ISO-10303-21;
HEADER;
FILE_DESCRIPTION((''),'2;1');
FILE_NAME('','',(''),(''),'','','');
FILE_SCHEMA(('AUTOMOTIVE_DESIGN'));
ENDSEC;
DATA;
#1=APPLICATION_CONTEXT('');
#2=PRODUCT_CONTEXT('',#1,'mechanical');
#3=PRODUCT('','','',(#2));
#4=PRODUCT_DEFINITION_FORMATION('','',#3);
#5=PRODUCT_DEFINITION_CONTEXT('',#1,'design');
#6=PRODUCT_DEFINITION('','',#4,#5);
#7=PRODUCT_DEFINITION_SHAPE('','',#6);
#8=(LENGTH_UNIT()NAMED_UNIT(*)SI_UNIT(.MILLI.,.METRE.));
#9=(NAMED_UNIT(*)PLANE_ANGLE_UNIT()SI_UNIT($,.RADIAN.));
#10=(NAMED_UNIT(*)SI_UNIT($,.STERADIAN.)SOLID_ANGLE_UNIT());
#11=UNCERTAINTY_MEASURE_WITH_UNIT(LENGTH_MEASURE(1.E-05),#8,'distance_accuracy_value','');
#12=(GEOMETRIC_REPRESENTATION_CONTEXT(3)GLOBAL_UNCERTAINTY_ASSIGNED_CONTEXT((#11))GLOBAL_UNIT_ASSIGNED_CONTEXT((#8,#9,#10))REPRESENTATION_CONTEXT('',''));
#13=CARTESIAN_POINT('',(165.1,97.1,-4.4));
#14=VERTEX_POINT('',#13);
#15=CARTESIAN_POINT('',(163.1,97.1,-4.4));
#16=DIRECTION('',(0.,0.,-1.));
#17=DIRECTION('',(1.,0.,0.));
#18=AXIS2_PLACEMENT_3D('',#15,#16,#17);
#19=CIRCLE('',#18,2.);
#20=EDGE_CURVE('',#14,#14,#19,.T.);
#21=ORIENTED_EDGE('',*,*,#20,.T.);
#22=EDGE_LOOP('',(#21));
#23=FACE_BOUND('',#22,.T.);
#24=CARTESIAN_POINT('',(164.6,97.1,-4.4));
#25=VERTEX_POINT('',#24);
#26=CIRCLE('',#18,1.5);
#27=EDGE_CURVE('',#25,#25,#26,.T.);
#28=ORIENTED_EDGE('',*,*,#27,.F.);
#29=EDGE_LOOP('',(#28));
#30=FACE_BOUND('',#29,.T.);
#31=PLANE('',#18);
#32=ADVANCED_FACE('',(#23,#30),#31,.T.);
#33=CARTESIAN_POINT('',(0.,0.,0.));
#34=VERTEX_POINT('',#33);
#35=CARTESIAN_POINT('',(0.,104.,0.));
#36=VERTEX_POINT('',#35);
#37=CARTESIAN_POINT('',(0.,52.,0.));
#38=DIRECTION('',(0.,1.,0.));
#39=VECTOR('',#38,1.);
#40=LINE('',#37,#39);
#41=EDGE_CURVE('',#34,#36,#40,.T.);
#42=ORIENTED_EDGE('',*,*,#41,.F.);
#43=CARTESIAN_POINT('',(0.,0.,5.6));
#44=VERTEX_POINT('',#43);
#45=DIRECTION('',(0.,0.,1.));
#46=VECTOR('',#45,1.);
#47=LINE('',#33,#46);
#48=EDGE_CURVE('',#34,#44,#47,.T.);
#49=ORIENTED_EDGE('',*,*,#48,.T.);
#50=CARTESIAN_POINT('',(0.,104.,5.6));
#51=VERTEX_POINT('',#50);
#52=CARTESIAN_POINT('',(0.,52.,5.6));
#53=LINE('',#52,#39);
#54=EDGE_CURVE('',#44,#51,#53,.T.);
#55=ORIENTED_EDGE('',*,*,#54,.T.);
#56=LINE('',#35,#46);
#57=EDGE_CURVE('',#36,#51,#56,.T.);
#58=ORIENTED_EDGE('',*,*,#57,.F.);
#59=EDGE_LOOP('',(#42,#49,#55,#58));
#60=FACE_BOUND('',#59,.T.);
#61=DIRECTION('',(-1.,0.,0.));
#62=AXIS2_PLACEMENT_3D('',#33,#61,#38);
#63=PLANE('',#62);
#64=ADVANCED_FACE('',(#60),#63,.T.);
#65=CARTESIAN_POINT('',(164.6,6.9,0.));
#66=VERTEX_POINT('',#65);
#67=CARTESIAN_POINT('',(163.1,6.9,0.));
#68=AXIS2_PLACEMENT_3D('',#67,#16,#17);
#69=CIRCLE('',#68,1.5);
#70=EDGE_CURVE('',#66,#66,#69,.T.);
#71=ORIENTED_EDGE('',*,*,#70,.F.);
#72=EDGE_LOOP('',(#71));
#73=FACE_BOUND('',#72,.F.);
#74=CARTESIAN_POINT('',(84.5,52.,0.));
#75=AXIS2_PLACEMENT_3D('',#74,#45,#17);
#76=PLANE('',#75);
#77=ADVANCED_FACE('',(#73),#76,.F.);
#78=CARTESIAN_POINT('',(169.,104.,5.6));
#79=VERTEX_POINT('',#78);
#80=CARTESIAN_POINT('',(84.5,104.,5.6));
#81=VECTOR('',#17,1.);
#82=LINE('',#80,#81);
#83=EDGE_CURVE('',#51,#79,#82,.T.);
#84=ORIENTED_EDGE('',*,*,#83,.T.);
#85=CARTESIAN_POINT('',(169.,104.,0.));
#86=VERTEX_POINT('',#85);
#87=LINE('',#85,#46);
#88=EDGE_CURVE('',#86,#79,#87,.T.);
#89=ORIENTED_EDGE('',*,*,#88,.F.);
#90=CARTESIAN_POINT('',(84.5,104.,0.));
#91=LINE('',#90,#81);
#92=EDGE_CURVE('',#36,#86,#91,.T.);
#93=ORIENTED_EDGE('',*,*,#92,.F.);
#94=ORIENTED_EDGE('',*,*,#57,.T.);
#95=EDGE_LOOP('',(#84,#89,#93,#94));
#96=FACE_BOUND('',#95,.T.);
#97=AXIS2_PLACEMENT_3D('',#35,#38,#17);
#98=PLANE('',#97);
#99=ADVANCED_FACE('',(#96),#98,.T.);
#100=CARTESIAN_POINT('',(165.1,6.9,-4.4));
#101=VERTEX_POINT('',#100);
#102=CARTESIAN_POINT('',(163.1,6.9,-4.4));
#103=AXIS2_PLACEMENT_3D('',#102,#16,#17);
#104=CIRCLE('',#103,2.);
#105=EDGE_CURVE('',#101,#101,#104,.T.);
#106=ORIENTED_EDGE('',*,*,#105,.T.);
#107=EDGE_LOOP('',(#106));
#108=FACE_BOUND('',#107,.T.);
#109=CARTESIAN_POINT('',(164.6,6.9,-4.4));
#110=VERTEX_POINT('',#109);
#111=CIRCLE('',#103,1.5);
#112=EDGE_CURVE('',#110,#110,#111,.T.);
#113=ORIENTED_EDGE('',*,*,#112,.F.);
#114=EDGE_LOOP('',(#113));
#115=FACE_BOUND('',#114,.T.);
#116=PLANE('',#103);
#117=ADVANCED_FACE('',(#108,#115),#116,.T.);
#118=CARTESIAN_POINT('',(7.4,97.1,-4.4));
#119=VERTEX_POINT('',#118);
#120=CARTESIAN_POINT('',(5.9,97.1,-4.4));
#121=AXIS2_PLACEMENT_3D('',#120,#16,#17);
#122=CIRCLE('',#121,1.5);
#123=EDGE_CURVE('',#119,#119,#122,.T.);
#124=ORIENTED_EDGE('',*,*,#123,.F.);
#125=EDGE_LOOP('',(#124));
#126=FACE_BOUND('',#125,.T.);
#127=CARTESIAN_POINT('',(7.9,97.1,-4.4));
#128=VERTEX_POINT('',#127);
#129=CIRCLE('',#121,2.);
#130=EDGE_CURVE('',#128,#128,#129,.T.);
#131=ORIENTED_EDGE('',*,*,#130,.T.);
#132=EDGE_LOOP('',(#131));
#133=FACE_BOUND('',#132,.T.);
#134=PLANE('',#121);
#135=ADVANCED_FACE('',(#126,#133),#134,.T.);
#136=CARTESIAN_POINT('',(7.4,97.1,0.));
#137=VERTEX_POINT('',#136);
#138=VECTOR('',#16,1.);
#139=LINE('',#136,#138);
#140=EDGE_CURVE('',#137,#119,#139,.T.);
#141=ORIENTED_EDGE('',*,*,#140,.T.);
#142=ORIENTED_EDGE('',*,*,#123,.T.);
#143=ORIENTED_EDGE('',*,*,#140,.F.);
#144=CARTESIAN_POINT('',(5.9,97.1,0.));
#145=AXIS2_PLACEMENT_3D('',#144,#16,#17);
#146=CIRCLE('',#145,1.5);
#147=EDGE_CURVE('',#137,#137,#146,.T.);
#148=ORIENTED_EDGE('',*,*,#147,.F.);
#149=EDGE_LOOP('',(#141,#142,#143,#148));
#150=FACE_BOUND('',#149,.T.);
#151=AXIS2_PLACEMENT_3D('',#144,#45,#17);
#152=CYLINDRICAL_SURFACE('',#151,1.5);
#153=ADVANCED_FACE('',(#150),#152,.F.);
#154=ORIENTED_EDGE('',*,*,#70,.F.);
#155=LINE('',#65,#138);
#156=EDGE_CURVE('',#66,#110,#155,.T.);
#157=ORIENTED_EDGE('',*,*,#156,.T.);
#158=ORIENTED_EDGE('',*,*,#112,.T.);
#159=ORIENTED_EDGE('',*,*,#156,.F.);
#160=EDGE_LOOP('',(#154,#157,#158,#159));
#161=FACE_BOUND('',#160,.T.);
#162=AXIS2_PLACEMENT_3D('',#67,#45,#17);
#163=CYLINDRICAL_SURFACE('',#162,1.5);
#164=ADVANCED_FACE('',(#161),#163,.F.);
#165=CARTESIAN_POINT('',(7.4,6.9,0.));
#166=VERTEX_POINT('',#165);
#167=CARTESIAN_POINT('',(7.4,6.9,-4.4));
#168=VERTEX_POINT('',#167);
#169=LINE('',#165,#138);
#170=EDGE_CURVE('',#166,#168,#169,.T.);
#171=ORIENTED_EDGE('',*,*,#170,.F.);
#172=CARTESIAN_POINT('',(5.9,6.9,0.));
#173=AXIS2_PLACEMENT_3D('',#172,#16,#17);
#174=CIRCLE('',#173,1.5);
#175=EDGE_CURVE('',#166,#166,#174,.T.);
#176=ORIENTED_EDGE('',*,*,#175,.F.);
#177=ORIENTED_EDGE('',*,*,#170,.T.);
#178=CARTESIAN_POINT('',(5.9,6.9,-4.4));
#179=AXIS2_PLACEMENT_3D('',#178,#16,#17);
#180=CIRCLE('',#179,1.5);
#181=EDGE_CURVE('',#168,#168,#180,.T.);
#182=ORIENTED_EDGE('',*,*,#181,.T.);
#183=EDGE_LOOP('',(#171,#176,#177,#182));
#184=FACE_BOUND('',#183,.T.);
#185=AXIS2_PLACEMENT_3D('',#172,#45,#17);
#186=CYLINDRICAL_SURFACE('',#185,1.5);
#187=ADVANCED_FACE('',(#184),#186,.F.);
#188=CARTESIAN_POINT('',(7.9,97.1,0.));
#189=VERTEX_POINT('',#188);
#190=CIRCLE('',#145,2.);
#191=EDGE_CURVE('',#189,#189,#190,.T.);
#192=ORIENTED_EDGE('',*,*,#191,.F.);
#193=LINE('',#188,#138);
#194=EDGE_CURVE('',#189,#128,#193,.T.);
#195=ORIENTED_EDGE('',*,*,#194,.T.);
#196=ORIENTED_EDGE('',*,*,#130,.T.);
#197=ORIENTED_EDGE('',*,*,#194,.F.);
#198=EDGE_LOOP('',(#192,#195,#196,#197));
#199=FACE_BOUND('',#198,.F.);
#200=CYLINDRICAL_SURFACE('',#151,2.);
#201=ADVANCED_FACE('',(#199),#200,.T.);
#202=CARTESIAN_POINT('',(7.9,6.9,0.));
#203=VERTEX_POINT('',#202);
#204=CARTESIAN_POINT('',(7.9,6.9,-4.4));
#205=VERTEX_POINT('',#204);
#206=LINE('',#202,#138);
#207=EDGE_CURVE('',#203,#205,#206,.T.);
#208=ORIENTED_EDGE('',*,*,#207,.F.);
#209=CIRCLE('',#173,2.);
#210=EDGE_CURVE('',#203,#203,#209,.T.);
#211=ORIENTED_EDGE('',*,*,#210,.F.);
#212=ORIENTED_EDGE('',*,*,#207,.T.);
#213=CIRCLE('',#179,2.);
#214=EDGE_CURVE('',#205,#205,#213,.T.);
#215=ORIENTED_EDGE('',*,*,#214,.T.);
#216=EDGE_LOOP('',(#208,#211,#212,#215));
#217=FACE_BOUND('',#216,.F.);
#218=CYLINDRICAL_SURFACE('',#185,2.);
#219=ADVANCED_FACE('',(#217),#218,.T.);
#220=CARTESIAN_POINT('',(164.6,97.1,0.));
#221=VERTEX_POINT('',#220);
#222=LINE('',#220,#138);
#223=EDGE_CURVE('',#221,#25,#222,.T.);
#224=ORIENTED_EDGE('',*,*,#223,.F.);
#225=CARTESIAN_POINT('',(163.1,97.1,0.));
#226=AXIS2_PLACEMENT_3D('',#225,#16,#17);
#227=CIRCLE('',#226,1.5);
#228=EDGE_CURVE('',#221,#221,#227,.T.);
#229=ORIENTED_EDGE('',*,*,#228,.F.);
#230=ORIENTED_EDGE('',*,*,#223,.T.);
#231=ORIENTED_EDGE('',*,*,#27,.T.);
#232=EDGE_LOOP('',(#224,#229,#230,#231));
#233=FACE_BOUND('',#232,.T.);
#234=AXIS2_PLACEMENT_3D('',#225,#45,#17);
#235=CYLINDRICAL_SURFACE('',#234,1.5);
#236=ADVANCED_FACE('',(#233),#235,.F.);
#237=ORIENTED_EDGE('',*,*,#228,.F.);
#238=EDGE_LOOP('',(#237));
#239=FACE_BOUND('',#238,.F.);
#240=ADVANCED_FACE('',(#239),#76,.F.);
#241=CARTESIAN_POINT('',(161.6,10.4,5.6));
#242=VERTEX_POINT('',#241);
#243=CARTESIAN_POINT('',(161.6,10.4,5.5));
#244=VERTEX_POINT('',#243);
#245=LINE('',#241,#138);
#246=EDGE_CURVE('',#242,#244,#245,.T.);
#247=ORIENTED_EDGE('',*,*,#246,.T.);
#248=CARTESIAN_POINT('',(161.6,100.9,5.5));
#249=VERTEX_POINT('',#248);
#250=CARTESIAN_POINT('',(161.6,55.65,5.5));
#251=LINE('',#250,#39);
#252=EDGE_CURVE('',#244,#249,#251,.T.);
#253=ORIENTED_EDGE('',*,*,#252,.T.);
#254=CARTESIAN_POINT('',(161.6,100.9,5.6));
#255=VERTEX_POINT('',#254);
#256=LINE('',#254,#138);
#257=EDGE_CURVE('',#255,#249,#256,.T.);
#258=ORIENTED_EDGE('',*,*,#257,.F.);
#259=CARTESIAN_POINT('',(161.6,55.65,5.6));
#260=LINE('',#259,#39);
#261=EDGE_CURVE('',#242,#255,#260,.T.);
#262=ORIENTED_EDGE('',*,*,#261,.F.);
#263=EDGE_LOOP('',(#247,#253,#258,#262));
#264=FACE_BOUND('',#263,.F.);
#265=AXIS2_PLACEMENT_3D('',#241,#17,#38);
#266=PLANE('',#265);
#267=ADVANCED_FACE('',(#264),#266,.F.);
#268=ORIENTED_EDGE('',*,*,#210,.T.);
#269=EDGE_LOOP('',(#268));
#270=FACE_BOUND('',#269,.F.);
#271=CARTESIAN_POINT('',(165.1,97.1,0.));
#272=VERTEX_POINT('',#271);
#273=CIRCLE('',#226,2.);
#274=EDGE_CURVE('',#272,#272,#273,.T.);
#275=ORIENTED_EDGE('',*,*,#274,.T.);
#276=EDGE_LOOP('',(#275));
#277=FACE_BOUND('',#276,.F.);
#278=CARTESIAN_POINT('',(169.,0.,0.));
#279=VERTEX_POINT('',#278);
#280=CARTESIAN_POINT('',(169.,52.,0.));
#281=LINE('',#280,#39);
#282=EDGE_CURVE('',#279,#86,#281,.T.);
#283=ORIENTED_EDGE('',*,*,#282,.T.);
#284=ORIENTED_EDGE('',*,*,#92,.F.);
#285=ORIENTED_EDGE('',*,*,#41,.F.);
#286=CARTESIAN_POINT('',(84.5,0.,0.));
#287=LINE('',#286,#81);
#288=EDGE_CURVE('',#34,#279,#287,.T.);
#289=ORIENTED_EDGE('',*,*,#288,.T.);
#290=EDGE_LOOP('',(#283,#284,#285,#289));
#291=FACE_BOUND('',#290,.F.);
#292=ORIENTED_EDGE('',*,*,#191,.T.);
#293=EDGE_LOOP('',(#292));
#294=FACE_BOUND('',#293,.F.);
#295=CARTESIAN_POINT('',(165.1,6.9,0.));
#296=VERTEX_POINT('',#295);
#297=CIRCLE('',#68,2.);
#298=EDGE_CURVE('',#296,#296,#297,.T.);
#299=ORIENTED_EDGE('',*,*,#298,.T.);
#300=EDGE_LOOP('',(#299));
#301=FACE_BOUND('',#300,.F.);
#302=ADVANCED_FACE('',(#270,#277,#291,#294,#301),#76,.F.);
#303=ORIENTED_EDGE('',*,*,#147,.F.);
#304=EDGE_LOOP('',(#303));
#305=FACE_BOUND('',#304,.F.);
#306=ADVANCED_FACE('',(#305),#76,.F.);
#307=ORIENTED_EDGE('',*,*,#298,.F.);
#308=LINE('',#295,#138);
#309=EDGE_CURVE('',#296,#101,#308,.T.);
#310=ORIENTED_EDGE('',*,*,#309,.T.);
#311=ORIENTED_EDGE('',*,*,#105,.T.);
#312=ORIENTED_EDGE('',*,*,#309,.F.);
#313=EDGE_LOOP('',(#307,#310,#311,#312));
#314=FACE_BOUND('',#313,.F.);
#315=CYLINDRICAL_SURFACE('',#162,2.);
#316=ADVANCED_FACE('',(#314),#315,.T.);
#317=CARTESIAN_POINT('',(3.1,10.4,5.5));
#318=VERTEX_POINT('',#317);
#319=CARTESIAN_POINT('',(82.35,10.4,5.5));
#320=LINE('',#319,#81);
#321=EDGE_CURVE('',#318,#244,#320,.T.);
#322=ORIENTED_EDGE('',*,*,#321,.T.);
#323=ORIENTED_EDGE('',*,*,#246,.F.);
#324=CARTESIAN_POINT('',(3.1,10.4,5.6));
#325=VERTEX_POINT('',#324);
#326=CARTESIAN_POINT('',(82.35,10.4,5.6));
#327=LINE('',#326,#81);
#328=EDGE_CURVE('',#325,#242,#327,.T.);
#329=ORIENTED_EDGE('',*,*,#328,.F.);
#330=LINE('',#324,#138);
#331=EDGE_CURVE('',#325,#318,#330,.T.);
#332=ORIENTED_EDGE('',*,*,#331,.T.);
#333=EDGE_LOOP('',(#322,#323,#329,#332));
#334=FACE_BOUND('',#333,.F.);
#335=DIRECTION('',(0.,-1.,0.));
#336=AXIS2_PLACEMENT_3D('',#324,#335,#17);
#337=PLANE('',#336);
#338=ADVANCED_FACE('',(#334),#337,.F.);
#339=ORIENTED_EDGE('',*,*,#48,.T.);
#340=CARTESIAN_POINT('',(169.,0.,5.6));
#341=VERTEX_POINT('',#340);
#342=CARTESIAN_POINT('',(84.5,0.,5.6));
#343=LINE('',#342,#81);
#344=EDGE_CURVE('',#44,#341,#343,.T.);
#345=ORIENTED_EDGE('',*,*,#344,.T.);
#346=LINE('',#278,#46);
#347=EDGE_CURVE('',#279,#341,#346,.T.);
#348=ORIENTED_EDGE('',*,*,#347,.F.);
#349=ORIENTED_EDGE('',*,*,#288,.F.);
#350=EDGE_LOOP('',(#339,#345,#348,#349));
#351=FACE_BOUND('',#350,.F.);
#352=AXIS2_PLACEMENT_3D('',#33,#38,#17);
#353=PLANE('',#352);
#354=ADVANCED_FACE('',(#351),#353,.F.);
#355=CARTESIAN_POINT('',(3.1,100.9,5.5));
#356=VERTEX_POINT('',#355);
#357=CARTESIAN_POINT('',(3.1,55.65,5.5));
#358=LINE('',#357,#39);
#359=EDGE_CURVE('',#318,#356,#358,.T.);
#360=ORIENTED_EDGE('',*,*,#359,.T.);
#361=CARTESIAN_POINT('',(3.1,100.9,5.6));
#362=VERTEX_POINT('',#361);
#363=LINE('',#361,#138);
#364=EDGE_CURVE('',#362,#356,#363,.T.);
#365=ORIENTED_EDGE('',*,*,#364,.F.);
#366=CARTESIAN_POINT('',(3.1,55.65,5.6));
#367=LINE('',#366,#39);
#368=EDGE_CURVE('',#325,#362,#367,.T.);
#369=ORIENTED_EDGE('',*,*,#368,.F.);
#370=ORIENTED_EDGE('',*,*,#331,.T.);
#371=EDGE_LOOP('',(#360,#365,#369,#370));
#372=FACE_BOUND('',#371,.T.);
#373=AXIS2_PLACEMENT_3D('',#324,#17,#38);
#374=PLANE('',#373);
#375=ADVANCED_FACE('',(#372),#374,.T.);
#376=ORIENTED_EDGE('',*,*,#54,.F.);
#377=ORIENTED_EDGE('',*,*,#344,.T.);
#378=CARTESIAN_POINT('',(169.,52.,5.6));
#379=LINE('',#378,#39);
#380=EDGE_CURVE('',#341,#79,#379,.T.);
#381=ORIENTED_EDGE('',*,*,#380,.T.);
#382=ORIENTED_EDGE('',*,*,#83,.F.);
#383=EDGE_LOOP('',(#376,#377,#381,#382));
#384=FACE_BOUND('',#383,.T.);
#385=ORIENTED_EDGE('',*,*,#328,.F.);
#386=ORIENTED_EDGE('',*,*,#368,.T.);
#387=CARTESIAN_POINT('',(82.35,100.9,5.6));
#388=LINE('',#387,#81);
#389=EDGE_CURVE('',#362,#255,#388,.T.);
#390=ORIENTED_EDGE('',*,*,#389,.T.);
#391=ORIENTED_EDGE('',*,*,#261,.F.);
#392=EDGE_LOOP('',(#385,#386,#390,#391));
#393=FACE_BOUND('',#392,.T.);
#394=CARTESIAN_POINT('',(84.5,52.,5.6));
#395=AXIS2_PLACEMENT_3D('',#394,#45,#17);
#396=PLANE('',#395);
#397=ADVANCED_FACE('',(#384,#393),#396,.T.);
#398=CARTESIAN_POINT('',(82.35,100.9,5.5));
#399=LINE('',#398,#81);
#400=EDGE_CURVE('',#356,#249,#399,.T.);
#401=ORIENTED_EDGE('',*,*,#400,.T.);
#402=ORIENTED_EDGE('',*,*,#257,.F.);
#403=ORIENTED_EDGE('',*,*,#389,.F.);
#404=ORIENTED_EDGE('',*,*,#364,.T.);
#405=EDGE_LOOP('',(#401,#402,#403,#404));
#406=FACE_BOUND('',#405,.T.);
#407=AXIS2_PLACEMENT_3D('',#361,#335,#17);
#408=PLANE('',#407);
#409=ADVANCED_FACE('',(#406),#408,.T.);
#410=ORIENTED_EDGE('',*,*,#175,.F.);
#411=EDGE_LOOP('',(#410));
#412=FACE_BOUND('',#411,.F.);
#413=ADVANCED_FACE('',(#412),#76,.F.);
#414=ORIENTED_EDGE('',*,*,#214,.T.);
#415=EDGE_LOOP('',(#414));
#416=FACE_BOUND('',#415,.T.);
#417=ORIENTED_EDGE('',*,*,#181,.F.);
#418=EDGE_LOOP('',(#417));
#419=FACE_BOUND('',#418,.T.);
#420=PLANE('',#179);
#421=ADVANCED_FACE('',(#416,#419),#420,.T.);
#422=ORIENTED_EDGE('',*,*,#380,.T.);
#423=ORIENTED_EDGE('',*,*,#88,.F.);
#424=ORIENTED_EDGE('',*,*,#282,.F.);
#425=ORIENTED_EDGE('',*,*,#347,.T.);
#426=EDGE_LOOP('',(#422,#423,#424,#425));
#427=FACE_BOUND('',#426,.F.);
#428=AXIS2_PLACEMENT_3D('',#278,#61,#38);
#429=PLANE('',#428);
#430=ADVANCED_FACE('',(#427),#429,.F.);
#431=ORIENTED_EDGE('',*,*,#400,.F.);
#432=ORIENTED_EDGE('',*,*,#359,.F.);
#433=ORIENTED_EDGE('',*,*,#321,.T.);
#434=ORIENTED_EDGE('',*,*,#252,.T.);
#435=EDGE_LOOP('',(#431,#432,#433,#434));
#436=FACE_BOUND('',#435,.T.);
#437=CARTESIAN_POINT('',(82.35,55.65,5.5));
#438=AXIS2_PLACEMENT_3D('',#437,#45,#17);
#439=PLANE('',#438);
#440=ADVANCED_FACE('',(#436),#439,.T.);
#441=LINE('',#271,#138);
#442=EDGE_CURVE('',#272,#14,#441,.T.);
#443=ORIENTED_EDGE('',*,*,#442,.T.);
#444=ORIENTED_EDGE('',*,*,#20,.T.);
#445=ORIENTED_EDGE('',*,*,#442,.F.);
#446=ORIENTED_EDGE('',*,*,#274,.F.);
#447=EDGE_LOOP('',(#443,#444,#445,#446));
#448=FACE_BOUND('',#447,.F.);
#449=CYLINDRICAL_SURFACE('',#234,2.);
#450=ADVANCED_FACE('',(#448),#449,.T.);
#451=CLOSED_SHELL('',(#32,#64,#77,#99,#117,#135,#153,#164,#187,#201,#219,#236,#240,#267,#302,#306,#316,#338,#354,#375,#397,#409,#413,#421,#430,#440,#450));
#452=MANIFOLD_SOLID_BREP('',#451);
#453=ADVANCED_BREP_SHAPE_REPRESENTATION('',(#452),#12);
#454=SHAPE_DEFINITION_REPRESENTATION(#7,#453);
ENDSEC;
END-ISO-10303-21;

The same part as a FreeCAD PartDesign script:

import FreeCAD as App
import Part
import Sketcher
from FreeCAD import Vector
Q = App.Units.Quantity

doc = App.newDocument("Part")
body = doc.addObject("PartDesign::Body", "Body")

# Sketch on XY plane
sketch1 = body.newObject("Sketcher::SketchObject", "Sketch")
sketch1.AttachmentSupport = (doc.getObject("XY_Plane"), [""])
sketch1.MapMode = "FlatFace"
sketch1.addGeometry([
    Part.LineSegment(Vector(0, 104, 0), Vector(0, 0, 0)),
    Part.LineSegment(Vector(0, 0, 0), Vector(169, 0, 0)),
    Part.LineSegment(Vector(169, 0, 0), Vector(169, 104, 0)),
    Part.LineSegment(Vector(169, 104, 0), Vector(0, 104, 0)),
], False)
sketch1.addConstraint([
    Sketcher.Constraint("Coincident", 0, 2, 1, 1),
    Sketcher.Constraint("Coincident", 1, 2, 2, 1),
    Sketcher.Constraint("Coincident", 2, 2, 3, 1),
    Sketcher.Constraint("Coincident", 3, 2, 0, 1),
    Sketcher.Constraint("Vertical", 0),
    Sketcher.Constraint("Horizontal", 1),
    Sketcher.Constraint("Vertical", 2),
    Sketcher.Constraint("Horizontal", 3),
    Sketcher.Constraint("Coincident", 0, 2, -1, 1),
    Sketcher.Constraint("DistanceX", 1, 1, 1, 2, Q("169 mm")),
    Sketcher.Constraint("DistanceY", 0, 2, 0, 1, Q("104 mm")),
])
pad1 = body.newObject("PartDesign::Pad", "Pad")
pad1.Profile = sketch1
pad1.Length = 5.6

# Sketch on XY plane
sketch2 = body.newObject("Sketcher::SketchObject", "Sketch001")
sketch2.AttachmentSupport = (doc.getObject("XY_Plane"), [""])
sketch2.MapMode = "FlatFace"
sketch2.AttachmentOffset = App.Placement(Vector(0, 0, 5.6), App.Rotation())
sketch2.addGeometry([
    Part.LineSegment(Vector(3, 101, 0), Vector(3, 10, 0)),
    Part.LineSegment(Vector(3, 10, 0), Vector(162, 10, 0)),
    Part.LineSegment(Vector(162, 10, 0), Vector(162, 101, 0)),
    Part.LineSegment(Vector(162, 101, 0), Vector(3, 101, 0)),
], False)
sketch2.addConstraint([
    Sketcher.Constraint("Coincident", 0, 2, 1, 1),
    Sketcher.Constraint("Coincident", 1, 2, 2, 1),
    Sketcher.Constraint("Coincident", 2, 2, 3, 1),
    Sketcher.Constraint("Coincident", 3, 2, 0, 1),
    Sketcher.Constraint("Vertical", 0),
    Sketcher.Constraint("Horizontal", 1),
    Sketcher.Constraint("Vertical", 2),
    Sketcher.Constraint("Horizontal", 3),
    Sketcher.Constraint("DistanceX", 1, 1, 1, 2, Q("158.5 mm")),
    Sketcher.Constraint("DistanceY", 0, 2, 0, 1, Q("90.5 mm")),
    Sketcher.Constraint("DistanceX", -1, 1, 0, 2, Q("3.1 mm")),
    Sketcher.Constraint("DistanceY", -1, 1, 0, 2, Q("10.4 mm")),
])
pocket1 = body.newObject("PartDesign::Pocket", "Pocket")
pocket1.Profile = sketch2
pocket1.Length = 0.1

# Sketch on XY plane
sketch3 = body.newObject("Sketcher::SketchObject", "Sketch002")
sketch3.AttachmentSupport = (doc.getObject("XY_Plane"), [""])
sketch3.MapMode = "FlatFace"
sketch3.addGeometry([
    Part.Circle(Vector(163.1, 97.1, 0), Vector(0, 0, 1), 2),  # 0
    Part.Circle(Vector(163.1, 97.1, 0), Vector(0, 0, 1), 1.5),  # 1
    Part.Circle(Vector(5.9, 97.1, 0), Vector(0, 0, 1), 2),  # 2
    Part.Circle(Vector(5.9, 97.1, 0), Vector(0, 0, 1), 1.5),  # 3
    Part.Circle(Vector(5.9, 6.9, 0), Vector(0, 0, 1), 2),  # 4
    Part.Circle(Vector(5.9, 6.9, 0), Vector(0, 0, 1), 1.5),  # 5
    Part.Circle(Vector(163.1, 6.9, 0), Vector(0, 0, 1), 2),  # 6
    Part.Circle(Vector(163.1, 6.9, 0), Vector(0, 0, 1), 1.5),  # 7
], False)
sketch3.addConstraint([
    Sketcher.Constraint("Coincident", 1, 3, 0, 3),
    Sketcher.Constraint("Coincident", 3, 3, 2, 3),
    Sketcher.Constraint("Coincident", 5, 3, 4, 3),
    Sketcher.Constraint("Coincident", 7, 3, 6, 3),
    Sketcher.Constraint("Equal", 0, 2),
    Sketcher.Constraint("Equal", 1, 3),
    Sketcher.Constraint("Equal", 2, 4),
    Sketcher.Constraint("Equal", 3, 5),
    Sketcher.Constraint("Equal", 4, 6),
    Sketcher.Constraint("Equal", 5, 7),
    Sketcher.Constraint("Horizontal", 1, 3, 2, 3),
    Sketcher.Constraint("Horizontal", 5, 3, 6, 3),
    Sketcher.Constraint("Vertical", 3, 3, 4, 3),
    Sketcher.Constraint("Vertical", 1, 3, 6, 3),
    Sketcher.Constraint("Diameter", 0, Q("4 mm")),
    Sketcher.Constraint("Diameter", 1, Q("3 mm")),
    Sketcher.Constraint("DistanceX", -1, 1, 0, 3, Q("163.1 mm")),
    Sketcher.Constraint("DistanceY", -1, 1, 0, 3, Q("97.1 mm")),
    Sketcher.Constraint("DistanceX", -1, 1, 2, 3, Q("5.9 mm")),
    Sketcher.Constraint("DistanceY", -1, 1, 4, 3, Q("6.9 mm")),
])
pad2 = body.newObject("PartDesign::Pad", "Pad001")
pad2.Profile = sketch3
pad2.Length = 4.4
pad2.Reversed = True

doc.recompute()
